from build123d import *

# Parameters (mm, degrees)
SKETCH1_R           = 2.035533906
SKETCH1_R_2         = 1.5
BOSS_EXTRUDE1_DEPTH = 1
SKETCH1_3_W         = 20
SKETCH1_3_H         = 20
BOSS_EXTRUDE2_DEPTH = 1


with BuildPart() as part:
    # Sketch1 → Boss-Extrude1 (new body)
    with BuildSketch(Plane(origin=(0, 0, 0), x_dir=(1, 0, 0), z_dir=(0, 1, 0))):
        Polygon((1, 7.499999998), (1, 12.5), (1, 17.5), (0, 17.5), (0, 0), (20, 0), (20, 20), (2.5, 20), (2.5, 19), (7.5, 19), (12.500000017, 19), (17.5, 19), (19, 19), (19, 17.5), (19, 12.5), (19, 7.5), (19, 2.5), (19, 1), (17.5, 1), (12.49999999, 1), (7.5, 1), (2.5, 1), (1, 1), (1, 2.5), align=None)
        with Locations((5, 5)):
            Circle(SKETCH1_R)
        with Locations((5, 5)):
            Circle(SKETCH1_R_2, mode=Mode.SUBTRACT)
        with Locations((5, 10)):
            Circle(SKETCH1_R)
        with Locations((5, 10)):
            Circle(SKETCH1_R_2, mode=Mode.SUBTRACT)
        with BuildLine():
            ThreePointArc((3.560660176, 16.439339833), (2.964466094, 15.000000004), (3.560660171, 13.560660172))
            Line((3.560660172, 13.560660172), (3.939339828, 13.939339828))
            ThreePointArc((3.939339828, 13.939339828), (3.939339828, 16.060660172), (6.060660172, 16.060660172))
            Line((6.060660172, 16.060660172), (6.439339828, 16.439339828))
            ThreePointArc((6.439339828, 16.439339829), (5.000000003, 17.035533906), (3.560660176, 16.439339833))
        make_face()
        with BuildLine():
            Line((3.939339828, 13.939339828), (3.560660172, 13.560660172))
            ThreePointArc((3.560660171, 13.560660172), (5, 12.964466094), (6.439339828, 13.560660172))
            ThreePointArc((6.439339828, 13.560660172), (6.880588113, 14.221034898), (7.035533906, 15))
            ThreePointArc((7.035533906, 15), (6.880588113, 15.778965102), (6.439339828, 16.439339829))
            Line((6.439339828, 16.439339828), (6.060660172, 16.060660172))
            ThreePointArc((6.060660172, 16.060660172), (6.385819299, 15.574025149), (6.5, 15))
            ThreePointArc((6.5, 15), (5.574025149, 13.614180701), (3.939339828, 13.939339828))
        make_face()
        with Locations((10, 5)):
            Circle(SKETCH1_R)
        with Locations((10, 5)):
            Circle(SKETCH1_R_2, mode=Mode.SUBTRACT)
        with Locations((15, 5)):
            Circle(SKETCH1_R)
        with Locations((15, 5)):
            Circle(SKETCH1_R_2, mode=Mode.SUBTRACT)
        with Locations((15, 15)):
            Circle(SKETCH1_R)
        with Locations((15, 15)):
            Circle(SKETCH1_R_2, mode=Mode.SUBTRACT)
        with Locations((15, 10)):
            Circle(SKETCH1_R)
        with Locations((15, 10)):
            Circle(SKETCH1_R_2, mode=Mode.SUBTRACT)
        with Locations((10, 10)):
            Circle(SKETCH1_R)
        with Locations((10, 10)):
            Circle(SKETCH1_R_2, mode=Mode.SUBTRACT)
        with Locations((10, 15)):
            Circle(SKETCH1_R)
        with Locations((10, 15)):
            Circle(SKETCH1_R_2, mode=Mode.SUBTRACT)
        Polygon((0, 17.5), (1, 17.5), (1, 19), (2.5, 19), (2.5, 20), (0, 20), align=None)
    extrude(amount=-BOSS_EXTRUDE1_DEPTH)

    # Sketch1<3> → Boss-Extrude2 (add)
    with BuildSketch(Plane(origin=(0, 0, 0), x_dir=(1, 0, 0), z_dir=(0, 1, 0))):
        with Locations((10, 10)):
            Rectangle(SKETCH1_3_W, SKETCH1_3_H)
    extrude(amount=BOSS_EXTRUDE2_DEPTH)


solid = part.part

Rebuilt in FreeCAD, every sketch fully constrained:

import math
import FreeCAD as App
import Part
import Sketcher


def add_polygon(sketch, points):
    """Adds a closed chain of lines whose ends are joined by coincident constraints."""
    first, n = sketch.GeometryCount, len(points)
    for a, b in zip(points, points[1:] + points[:1]):
        sketch.addGeometry(Part.LineSegment(App.Vector(*a, 0), App.Vector(*b, 0)), False)
    for i in range(n):
        sketch.addConstraint(Sketcher.Constraint("Coincident", first + i, 2, first + (i + 1) % n, 1))

doc = App.newDocument("Part")
body = doc.addObject("PartDesign::Body", "Body")
body.AllowCompound = True

sketch1 = body.newObject("Sketcher::SketchObject", "Sketch")
sketch1.AttachmentSupport = (doc.getObject("XZ_Plane"), [""])
sketch1.MapMode = "FlatFace"
add_polygon(sketch1, [(0, 0), (20, 0), (20, -20), (0, -20)])
add_polygon(sketch1, [(19, -19), (19, -1), (1, -1), (1, -19)])
sketch1.addGeometry(Part.Circle(App.Vector(5, -5, 0), App.Vector(0, 0, 1), 2.035534), False)
sketch1.addGeometry(Part.Circle(App.Vector(5, -5, 0), App.Vector(0, 0, 1), 1.5), False)
sketch1.addGeometry(Part.Circle(App.Vector(5, -10, 0), App.Vector(0, 0, 1), 2.035534), False)
sketch1.addGeometry(Part.Circle(App.Vector(5, -10, 0), App.Vector(0, 0, 1), 1.5), False)
sketch1.addGeometry(Part.ArcOfCircle(Part.Circle(App.Vector(5, -15, 0), App.Vector(0, 0, 1), 2.035534), math.radians(135), math.radians(225)), False)
sketch1.addGeometry(Part.ArcOfCircle(Part.Circle(App.Vector(5, -15, 0), App.Vector(0, 0, 1), 2.035534), math.radians(45), math.radians(135)), False)
sketch1.addGeometry(Part.ArcOfCircle(Part.Circle(App.Vector(5, -15, 0), App.Vector(0, 0, 1), 2.035534), math.radians(0), math.radians(45)), False)
sketch1.addGeometry(Part.ArcOfCircle(Part.Circle(App.Vector(5, -15, 0), App.Vector(0, 0, 1), 2.035534), math.radians(-45), math.radians(0)), False)
sketch1.addGeometry(Part.ArcOfCircle(Part.Circle(App.Vector(5, -15, 0), App.Vector(0, 0, 1), 2.035534), math.radians(-135), math.radians(-45)), False)
sketch1.addGeometry(Part.ArcOfCircle(Part.Circle(App.Vector(5, -15, 0), App.Vector(0, 0, 1), 1.5), math.radians(135), math.radians(315)), False)
sketch1.addGeometry(Part.ArcOfCircle(Part.Circle(App.Vector(5, -15, 0), App.Vector(0, 0, 1), 1.5), math.radians(-45), math.radians(0)), False)
sketch1.addGeometry(Part.ArcOfCircle(Part.Circle(App.Vector(5, -15, 0), App.Vector(0, 0, 1), 1.5), math.radians(0), math.radians(135)), False)
sketch1.addGeometry(Part.Circle(App.Vector(10, -5, 0), App.Vector(0, 0, 1), 2.035534), False)
sketch1.addGeometry(Part.Circle(App.Vector(10, -5, 0), App.Vector(0, 0, 1), 1.5), False)
sketch1.addGeometry(Part.Circle(App.Vector(15, -5, 0), App.Vector(0, 0, 1), 2.035534), False)
sketch1.addGeometry(Part.Circle(App.Vector(15, -5, 0), App.Vector(0, 0, 1), 1.5), False)
sketch1.addGeometry(Part.Circle(App.Vector(15, -15, 0), App.Vector(0, 0, 1), 2.035534), False)
sketch1.addGeometry(Part.Circle(App.Vector(15, -15, 0), App.Vector(0, 0, 1), 1.5), False)
sketch1.addGeometry(Part.Circle(App.Vector(15, -10, 0), App.Vector(0, 0, 1), 2.035534), False)
sketch1.addGeometry(Part.Circle(App.Vector(15, -10, 0), App.Vector(0, 0, 1), 1.5), False)
sketch1.addGeometry(Part.Circle(App.Vector(10, -10, 0), App.Vector(0, 0, 1), 2.035534), False)
sketch1.addGeometry(Part.Circle(App.Vector(10, -10, 0), App.Vector(0, 0, 1), 1.5), False)
sketch1.addGeometry(Part.Circle(App.Vector(10, -15, 0), App.Vector(0, 0, 1), 2.035534), False)
sketch1.addGeometry(Part.Circle(App.Vector(10, -15, 0), App.Vector(0, 0, 1), 1.5), False)
sketch1.addConstraint([
    Sketcher.Constraint("Tangent", 12, 1, 13, 2),
    Sketcher.Constraint("Tangent", 13, 1, 14, 2),
    Sketcher.Constraint("Tangent", 14, 1, 15, 2),
    Sketcher.Constraint("Tangent", 15, 1, 16, 2),
    Sketcher.Constraint("Tangent", 16, 1, 12, 2),
    Sketcher.Constraint("Tangent", 17, 2, 18, 1),
    Sketcher.Constraint("Tangent", 18, 2, 19, 1),
    Sketcher.Constraint("Tangent", 19, 2, 17, 1),
    Sketcher.Constraint("Horizontal", 0),
    Sketcher.Constraint("Vertical", 1),
    Sketcher.Constraint("Horizontal", 2),
    Sketcher.Constraint("Vertical", 3),
    Sketcher.Constraint("Vertical", 4),
    Sketcher.Constraint("Horizontal", 5),
    Sketcher.Constraint("Vertical", 6),
    Sketcher.Constraint("Horizontal", 7),
    Sketcher.Constraint("Coincident", 3, 2, -1, 1),
    Sketcher.Constraint("Coincident", 9, 3, 8, 3),
    Sketcher.Constraint("Coincident", 11, 3, 10, 3),
    Sketcher.Constraint("Coincident", 14, 3, 12, 3),
    Sketcher.Constraint("Coincident", 17, 3, 12, 3),
    Sketcher.Constraint("Coincident", 21, 3, 20, 3),
    Sketcher.Constraint("Coincident", 23, 3, 22, 3),
    Sketcher.Constraint("Coincident", 25, 3, 24, 3),
    Sketcher.Constraint("Coincident", 27, 3, 26, 3),
    Sketcher.Constraint("Coincident", 29, 3, 28, 3),
    Sketcher.Constraint("Coincident", 31, 3, 30, 3),
    Sketcher.Constraint("Equal", 8, 10),
    Sketcher.Constraint("Equal", 9, 11),
    Sketcher.Constraint("Equal", 10, 12),
    Sketcher.Constraint("Equal", 11, 17),
    Sketcher.Constraint("Equal", 16, 20),
    Sketcher.Constraint("Equal", 19, 21),
    Sketcher.Constraint("Equal", 20, 22),
    Sketcher.Constraint("Equal", 21, 23),
    Sketcher.Constraint("Equal", 22, 24),
    Sketcher.Constraint("Equal", 23, 25),
    Sketcher.Constraint("Equal", 24, 26),
    Sketcher.Constraint("Equal", 25, 27),
    Sketcher.Constraint("Equal", 26, 28),
    Sketcher.Constraint("Equal", 27, 29),
    Sketcher.Constraint("Equal", 28, 30),
    Sketcher.Constraint("Equal", 29, 31),
    Sketcher.Constraint("Horizontal", 9, 3, 20, 3),
    Sketcher.Constraint("Horizontal", 21, 3, 22, 3),
    Sketcher.Constraint("Horizontal", 19, 3, 24, 3),
    Sketcher.Constraint("Horizontal", 11, 3, 26, 3),
    Sketcher.Constraint("Horizontal", 27, 3, 28, 3),
    Sketcher.Constraint("Horizontal", 25, 3, 30, 3),
    Sketcher.Constraint("Horizontal", 12, 1, 13, 1),
    Sketcher.Constraint("Horizontal", 31, 3, 14, 1),
    Sketcher.Constraint("Horizontal", 15, 1, 16, 1),
    Sketcher.Constraint("Horizontal", 14, 1, 18, 2),
    Sketcher.Constraint("Vertical", 9, 3, 10, 3),
    Sketcher.Constraint("Vertical", 11, 3, 12, 3),
    Sketcher.Constraint("Vertical", 23, 3, 24, 3),
    Sketcher.Constraint("Vertical", 25, 3, 26, 3),
    Sketcher.Constraint("Vertical", 21, 3, 28, 3),
    Sketcher.Constraint("Vertical", 29, 3, 30, 3),
    Sketcher.Constraint("Vertical", 13, 1, 15, 1),
    Sketcher.Constraint("Equal", 2, 1),
    Sketcher.Constraint("Equal", 7, 4),
    Sketcher.Constraint("Diameter", 9, 3.0),
    Sketcher.Constraint("DistanceX", 0, 1, 0, 2, 20.0),
    Sketcher.Constraint("DistanceX", 5, 2, 5, 1, 18.0),
    Sketcher.Constraint("DistanceX", -1, 1, 8, 3, 5.0),
    Sketcher.Constraint("DistanceY", 8, 3, -1, 1, 5.0),
    Sketcher.Constraint("DistanceY", 10, 3, -1, 1, 10.0),
    Sketcher.Constraint("DistanceY", 12, 3, -1, 1, 15.0),
    Sketcher.Constraint("DistanceX", -1, 1, 20, 3, 10.0),
    Sketcher.Constraint("DistanceX", -1, 1, 22, 3, 15.0),
    Sketcher.Constraint("DistanceX", -1, 1, 4, 2, 19.0),
    Sketcher.Constraint("DistanceY", 4, 2, -1, 1, 1.0),
    Sketcher.Constraint("Diameter", 8, 4.071068),
    Sketcher.Constraint("DistanceX", -1, 1, 12, 1, 3.56066),
    Sketcher.Constraint("DistanceX", -1, 1, 17, 2, 6.06066),
    Sketcher.Constraint("DistanceX", -1, 1, 19, 2, 3.93934),
])
pad1 = body.newObject("PartDesign::Pad", "Pad")
pad1.Profile = sketch1
pad1.Length = 1

sketch2 = body.newObject("Sketcher::SketchObject", "Sketch001")
sketch2.AttachmentSupport = (doc.getObject("XZ_Plane"), [""])
sketch2.MapMode = "FlatFace"
add_polygon(sketch2, [(0, -20), (0, 0), (20, 0), (20, -20)])
sketch2.addConstraint([
    Sketcher.Constraint("Vertical", 0),
    Sketcher.Constraint("Horizontal", 1),
    Sketcher.Constraint("Vertical", 2),
    Sketcher.Constraint("Horizontal", 3),
    Sketcher.Constraint("Coincident", 0, 2, -1, 1),
    Sketcher.Constraint("Equal", 3, 0),
    Sketcher.Constraint("DistanceX", 1, 1, 1, 2, 20.0),
])
pad2 = body.newObject("PartDesign::Pad", "Pad001")
pad2.Profile = sketch2
pad2.Length = 1
pad2.Reversed = True

doc.recompute()
